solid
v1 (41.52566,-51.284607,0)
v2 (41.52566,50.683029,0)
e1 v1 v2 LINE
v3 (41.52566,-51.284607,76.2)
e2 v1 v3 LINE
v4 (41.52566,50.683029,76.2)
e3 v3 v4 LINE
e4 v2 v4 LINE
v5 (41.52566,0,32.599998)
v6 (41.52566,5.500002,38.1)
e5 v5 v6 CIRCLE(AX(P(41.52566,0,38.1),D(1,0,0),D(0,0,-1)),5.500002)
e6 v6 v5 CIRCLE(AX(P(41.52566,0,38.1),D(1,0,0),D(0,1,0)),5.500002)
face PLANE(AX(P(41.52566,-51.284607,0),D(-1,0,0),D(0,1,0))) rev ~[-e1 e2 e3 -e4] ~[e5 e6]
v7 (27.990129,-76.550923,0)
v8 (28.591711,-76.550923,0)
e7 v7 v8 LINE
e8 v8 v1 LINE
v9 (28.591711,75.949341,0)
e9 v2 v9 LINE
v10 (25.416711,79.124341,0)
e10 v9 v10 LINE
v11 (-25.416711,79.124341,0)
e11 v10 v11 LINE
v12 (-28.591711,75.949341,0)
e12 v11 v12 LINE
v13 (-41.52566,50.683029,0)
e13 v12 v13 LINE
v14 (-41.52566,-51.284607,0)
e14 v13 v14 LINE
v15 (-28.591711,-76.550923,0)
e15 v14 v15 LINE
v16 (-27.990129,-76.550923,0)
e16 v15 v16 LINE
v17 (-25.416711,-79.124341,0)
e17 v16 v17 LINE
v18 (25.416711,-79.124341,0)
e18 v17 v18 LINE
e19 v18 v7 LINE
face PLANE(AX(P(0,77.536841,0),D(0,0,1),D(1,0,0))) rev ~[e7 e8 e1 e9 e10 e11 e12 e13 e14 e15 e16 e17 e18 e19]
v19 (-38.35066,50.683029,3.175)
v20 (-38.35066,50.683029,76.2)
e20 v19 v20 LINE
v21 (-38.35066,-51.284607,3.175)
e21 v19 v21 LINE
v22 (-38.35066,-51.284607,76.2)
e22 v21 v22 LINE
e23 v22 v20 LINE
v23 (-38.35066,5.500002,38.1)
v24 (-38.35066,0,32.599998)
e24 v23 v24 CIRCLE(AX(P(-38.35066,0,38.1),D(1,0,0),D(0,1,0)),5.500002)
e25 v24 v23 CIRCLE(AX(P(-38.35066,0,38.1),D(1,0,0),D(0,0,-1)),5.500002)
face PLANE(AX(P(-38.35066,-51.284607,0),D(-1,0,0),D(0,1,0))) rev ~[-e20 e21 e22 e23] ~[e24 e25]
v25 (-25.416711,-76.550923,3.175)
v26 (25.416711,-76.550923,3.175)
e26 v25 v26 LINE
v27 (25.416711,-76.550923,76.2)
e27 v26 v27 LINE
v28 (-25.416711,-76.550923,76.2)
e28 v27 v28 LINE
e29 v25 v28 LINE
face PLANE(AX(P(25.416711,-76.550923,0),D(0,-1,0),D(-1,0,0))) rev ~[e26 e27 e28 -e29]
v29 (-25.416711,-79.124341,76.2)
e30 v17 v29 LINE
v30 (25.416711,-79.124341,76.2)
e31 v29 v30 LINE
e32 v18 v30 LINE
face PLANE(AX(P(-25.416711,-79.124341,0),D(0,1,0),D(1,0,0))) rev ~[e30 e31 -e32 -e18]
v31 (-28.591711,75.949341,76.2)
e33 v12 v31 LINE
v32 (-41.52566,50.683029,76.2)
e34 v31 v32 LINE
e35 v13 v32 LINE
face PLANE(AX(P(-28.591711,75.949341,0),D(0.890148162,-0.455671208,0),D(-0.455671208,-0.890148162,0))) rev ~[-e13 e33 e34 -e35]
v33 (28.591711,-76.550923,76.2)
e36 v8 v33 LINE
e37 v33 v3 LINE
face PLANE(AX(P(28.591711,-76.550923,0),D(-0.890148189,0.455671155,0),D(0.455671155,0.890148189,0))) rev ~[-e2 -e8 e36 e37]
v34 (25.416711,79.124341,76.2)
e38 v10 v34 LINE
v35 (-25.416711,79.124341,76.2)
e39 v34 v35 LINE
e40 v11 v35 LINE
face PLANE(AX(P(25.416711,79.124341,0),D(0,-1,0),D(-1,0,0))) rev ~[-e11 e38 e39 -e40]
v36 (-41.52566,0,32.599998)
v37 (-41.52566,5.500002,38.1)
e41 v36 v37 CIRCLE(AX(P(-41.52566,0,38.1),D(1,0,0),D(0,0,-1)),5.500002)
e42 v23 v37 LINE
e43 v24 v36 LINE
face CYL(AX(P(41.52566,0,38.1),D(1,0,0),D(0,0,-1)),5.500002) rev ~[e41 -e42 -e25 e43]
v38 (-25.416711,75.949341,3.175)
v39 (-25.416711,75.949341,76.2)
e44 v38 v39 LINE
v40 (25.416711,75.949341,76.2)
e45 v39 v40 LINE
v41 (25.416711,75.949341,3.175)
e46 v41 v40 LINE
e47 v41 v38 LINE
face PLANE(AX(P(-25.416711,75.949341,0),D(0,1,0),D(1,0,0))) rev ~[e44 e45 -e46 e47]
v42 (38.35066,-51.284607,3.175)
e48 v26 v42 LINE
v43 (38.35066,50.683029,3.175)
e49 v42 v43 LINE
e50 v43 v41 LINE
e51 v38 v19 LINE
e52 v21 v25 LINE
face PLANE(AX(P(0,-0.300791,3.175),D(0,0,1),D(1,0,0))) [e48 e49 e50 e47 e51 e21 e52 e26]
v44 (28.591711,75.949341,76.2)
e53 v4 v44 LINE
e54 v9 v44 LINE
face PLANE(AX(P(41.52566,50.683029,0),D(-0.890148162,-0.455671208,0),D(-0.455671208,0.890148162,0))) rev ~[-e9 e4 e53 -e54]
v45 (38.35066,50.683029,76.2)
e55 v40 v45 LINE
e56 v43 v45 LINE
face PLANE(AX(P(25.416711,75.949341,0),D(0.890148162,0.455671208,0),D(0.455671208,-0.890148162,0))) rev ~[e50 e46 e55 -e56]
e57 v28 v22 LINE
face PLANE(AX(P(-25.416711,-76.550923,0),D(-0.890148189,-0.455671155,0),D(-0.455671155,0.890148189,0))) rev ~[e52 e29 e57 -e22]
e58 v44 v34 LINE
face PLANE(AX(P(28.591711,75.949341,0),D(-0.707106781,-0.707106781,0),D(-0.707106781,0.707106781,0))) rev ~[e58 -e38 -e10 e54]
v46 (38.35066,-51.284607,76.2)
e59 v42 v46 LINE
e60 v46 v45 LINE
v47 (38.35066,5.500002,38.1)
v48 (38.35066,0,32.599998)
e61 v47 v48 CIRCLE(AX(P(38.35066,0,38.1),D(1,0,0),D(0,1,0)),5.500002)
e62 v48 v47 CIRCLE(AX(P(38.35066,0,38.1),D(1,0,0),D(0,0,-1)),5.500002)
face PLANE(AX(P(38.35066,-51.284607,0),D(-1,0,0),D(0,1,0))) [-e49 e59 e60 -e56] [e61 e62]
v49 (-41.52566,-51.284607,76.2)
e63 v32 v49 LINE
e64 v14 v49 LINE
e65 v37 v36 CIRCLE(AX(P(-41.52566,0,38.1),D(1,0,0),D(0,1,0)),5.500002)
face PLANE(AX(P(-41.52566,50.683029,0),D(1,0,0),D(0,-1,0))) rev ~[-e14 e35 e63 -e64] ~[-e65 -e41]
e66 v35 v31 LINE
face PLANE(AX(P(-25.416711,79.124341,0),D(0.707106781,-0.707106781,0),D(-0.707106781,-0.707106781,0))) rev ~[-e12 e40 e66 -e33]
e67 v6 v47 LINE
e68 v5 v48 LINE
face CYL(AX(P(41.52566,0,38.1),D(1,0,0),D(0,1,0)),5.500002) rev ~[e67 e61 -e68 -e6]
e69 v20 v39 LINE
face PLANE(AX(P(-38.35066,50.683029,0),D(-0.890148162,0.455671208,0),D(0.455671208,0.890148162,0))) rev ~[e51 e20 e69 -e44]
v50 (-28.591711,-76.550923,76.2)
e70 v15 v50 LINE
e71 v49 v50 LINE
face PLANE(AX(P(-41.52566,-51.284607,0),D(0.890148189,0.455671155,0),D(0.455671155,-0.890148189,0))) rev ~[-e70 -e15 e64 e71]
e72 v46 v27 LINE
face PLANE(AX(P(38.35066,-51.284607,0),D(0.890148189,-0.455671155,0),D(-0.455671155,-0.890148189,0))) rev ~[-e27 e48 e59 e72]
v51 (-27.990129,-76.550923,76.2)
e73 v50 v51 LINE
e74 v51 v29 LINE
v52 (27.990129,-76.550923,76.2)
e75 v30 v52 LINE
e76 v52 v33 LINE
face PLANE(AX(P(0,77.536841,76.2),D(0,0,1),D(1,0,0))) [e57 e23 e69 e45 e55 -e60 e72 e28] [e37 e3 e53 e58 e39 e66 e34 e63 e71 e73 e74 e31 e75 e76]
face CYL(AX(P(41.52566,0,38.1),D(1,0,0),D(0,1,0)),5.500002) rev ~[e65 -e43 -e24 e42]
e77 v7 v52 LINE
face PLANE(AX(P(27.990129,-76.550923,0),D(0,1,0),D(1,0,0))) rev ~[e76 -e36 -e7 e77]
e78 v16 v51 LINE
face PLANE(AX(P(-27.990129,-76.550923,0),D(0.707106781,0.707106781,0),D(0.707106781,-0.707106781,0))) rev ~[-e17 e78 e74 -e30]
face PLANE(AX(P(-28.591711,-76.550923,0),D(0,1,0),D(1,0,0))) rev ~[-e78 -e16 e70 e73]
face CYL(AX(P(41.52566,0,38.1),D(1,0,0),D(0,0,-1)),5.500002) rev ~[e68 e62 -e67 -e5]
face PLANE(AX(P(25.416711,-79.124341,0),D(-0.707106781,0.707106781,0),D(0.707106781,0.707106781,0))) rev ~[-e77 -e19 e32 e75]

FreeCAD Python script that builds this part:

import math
import FreeCAD as App
import Part
import Sketcher
Q = App.Units.Quantity

doc = App.newDocument("Part")
params = doc.addObject("Spreadsheet::Sheet", "Params")
for row, (alias, value) in enumerate([
    ("pad1_length", "0.125 in"),
    ("pad2_length", "3 in"),
    ("pocket1_length", "4.2 in"),
], start=1):
    params.set(f"A{row}", alias)
    params.set(f"B{row}", "=" + value)
    params.setAlias(f"B{row}", alias)

body = doc.addObject("PartDesign::Body", "Body")

# Sketch on XY plane
sketch1 = body.newObject("Sketcher::SketchObject", "Sketch")
sketch1.AttachmentSupport = (doc.getObject("XY_Plane"), [""])
sketch1.MapMode = "FlatFace"
sketch1.addGeometry([
    Part.LineSegment(App.Vector(25, 76, 0), App.Vector(-25, 76, 0)),  # 0
    Part.LineSegment(App.Vector(-25, 76, 0), App.Vector(-38, 51, 0)),  # 1
    Part.LineSegment(App.Vector(-38, 51, 0), App.Vector(-38, -51, 0)),  # 2
    Part.LineSegment(App.Vector(-38, -51, 0), App.Vector(-25, -77, 0)),  # 3
    Part.LineSegment(App.Vector(-25, -77, 0), App.Vector(25, -77, 0)),  # 4
    Part.LineSegment(App.Vector(25, -77, 0), App.Vector(38, -51, 0)),  # 5
    Part.LineSegment(App.Vector(38, -51, 0), App.Vector(38, 51, 0)),  # 6
    Part.LineSegment(App.Vector(38, 51, 0), App.Vector(25, 76, 0)),  # 7
], False)
sketch1.addConstraint([
    Sketcher.Constraint("Coincident", 0, 2, 1, 1),
    Sketcher.Constraint("Coincident", 1, 2, 2, 1),
    Sketcher.Constraint("Coincident", 2, 2, 3, 1),
    Sketcher.Constraint("Coincident", 3, 2, 4, 1),
    Sketcher.Constraint("Coincident", 4, 2, 5, 1),
    Sketcher.Constraint("Coincident", 5, 2, 6, 1),
    Sketcher.Constraint("Coincident", 6, 2, 7, 1),
    Sketcher.Constraint("Coincident", 7, 2, 0, 1),
    Sketcher.Constraint("Horizontal", 0),
    Sketcher.Constraint("Vertical", 2),
    Sketcher.Constraint("Horizontal", 4),
    Sketcher.Constraint("Vertical", 6),
    Sketcher.Constraint("Symmetric", 2, 2, 5, 2, -2),
    Sketcher.Constraint("Parallel", 1, 5),
    Sketcher.Constraint("Parallel", 3, 7),
    Sketcher.Constraint("Horizontal", 1, 2, 6, 2),
    Sketcher.Constraint("Vertical", 0, 2, 3, 2),
    Sketcher.Constraint("Vertical", 4, 2, 7, 2),
    Sketcher.Constraint("Distance", 1, Q("28.384389 mm")),
    Sketcher.Constraint("DistanceX", 0, 2, 0, 1, Q("50.833423 mm")),
    Sketcher.Constraint("DistanceY", 2, 2, 2, 1, Q("101.967636 mm")),
    Sketcher.Constraint("DistanceY", -1, 1, 0, 2, Q("75.949341 mm")),
    Sketcher.Constraint("DistanceX", 1, 2, -1, 1, Q("38.35066 mm")),
])
pad1 = body.newObject("PartDesign::Pad", "Pad")
pad1.Profile = sketch1
pad1.setExpression("Length", "Params.pad1_length")

# Sketch on XY plane
sketch2 = body.newObject("Sketcher::SketchObject", "Sketch001")
sketch2.AttachmentSupport = (doc.getObject("XY_Plane"), [""])
sketch2.MapMode = "FlatFace"
sketch2.addGeometry([
    Part.LineSegment(App.Vector(-25.4, -79.1, 0), App.Vector(25.4, -79.1, 0)),  # 0
    Part.LineSegment(App.Vector(25.4, -79.1, 0), App.Vector(28, -76.6, 0)),  # 1
    Part.LineSegment(App.Vector(28, -76.6, 0), App.Vector(28.6, -76.6, 0)),  # 2
    Part.LineSegment(App.Vector(28.6, -76.6, 0), App.Vector(41.5, -51.3, 0)),  # 3
    Part.LineSegment(App.Vector(41.5, -51.3, 0), App.Vector(41.5, 50.7, 0)),  # 4
    Part.LineSegment(App.Vector(41.5, 50.7, 0), App.Vector(28.6, 75.9, 0)),  # 5
    Part.LineSegment(App.Vector(28.6, 75.9, 0), App.Vector(25.4, 79.1, 0)),  # 6
    Part.LineSegment(App.Vector(25.4, 79.1, 0), App.Vector(-25.4, 79.1, 0)),  # 7
    Part.LineSegment(App.Vector(-25.4, 79.1, 0), App.Vector(-28.6, 75.9, 0)),  # 8
    Part.LineSegment(App.Vector(-28.6, 75.9, 0), App.Vector(-41.5, 50.7, 0)),  # 9
    Part.LineSegment(App.Vector(-41.5, 50.7, 0), App.Vector(-41.5, -51.3, 0)),  # 10
    Part.LineSegment(App.Vector(-41.5, -51.3, 0), App.Vector(-28.6, -76.6, 0)),  # 11
    Part.LineSegment(App.Vector(-28.6, -76.6, 0), App.Vector(-28, -76.6, 0)),  # 12
    Part.LineSegment(App.Vector(-28, -76.6, 0), App.Vector(-25.4, -79.1, 0)),  # 13
    Part.LineSegment(App.Vector(38.4, -51.3, 0), App.Vector(25.4, -76.6, 0)),  # 14
    Part.LineSegment(App.Vector(25.4, -76.6, 0), App.Vector(-25.4, -76.6, 0)),  # 15
    Part.LineSegment(App.Vector(-25.4, -76.6, 0), App.Vector(-38.4, -51.3, 0)),  # 16
    Part.LineSegment(App.Vector(-38.4, -51.3, 0), App.Vector(-38.4, 50.7, 0)),  # 17
    Part.LineSegment(App.Vector(-38.4, 50.7, 0), App.Vector(-25.4, 75.9, 0)),  # 18
    Part.LineSegment(App.Vector(-25.4, 75.9, 0), App.Vector(25.4, 75.9, 0)),  # 19
    Part.LineSegment(App.Vector(25.4, 75.9, 0), App.Vector(38.4, 50.7, 0)),  # 20
    Part.LineSegment(App.Vector(38.4, 50.7, 0), App.Vector(38.4, -51.3, 0)),  # 21
], False)
sketch2.addConstraint([
    Sketcher.Constraint("Coincident", 0, 2, 1, 1),
    Sketcher.Constraint("Coincident", 1, 2, 2, 1),
    Sketcher.Constraint("Coincident", 2, 2, 3, 1),
    Sketcher.Constraint("Coincident", 3, 2, 4, 1),
    Sketcher.Constraint("Coincident", 4, 2, 5, 1),
    Sketcher.Constraint("Coincident", 5, 2, 6, 1),
    Sketcher.Constraint("Coincident", 6, 2, 7, 1),
    Sketcher.Constraint("Coincident", 7, 2, 8, 1),
    Sketcher.Constraint("Coincident", 8, 2, 9, 1),
    Sketcher.Constraint("Coincident", 9, 2, 10, 1),
    Sketcher.Constraint("Coincident", 10, 2, 11, 1),
    Sketcher.Constraint("Coincident", 11, 2, 12, 1),
    Sketcher.Constraint("Coincident", 12, 2, 13, 1),
    Sketcher.Constraint("Coincident", 13, 2, 0, 1),
    Sketcher.Constraint("Coincident", 14, 2, 15, 1),
    Sketcher.Constraint("Coincident", 15, 2, 16, 1),
    Sketcher.Constraint("Coincident", 16, 2, 17, 1),
    Sketcher.Constraint("Coincident", 17, 2, 18, 1),
    Sketcher.Constraint("Coincident", 18, 2, 19, 1),
    Sketcher.Constraint("Coincident", 19, 2, 20, 1),
    Sketcher.Constraint("Coincident", 20, 2, 21, 1),
    Sketcher.Constraint("Coincident", 21, 2, 14, 1),
    Sketcher.Constraint("Horizontal", 0),
    Sketcher.Constraint("Horizontal", 2),
    Sketcher.Constraint("Vertical", 4),
    Sketcher.Constraint("Horizontal", 7),
    Sketcher.Constraint("Vertical", 10),
    Sketcher.Constraint("Horizontal", 12),
    Sketcher.Constraint("Horizontal", 15),
    Sketcher.Constraint("Vertical", 17),
    Sketcher.Constraint("Horizontal", 19),
    Sketcher.Constraint("Vertical", 21),
    Sketcher.Constraint("Symmetric", 0, 2, 7, 2, -1, 1),
    Sketcher.Constraint("Symmetric", 5, 2, 8, 2, -2),
    Sketcher.Constraint("Symmetric", 4, 2, 9, 2, -2),
    Sketcher.Constraint("Symmetric", 2, 2, 11, 2, -2),
    Sketcher.Constraint("Symmetric", 17, 2, 20, 2, -2),
    Sketcher.Constraint("Perpendicular", 1, 6),
    Sketcher.Constraint("Perpendicular", 6, 8),
    Sketcher.Constraint("Parallel", 3, 9),
    Sketcher.Constraint("Parallel", 5, 11),
    Sketcher.Constraint("Perpendicular", 8, 13),
    Sketcher.Constraint("Parallel", 9, 14),
    Sketcher.Constraint("Parallel", 11, 16),
    Sketcher.Constraint("Parallel", 14, 18),
    Sketcher.Constraint("Parallel", 16, 20),
    Sketcher.Constraint("Horizontal", 12, 2, 14, 2),
    Sketcher.Constraint("Horizontal", 10, 2, 16, 2),
    Sketcher.Constraint("Horizontal", 9, 2, 17, 2),
    Sketcher.Constraint("Horizontal", 8, 2, 18, 2),
    Sketcher.Constraint("Horizontal", 16, 2, 21, 2),
    Sketcher.Constraint("Vertical", 2, 2, 5, 2),
    Sketcher.Constraint("Vertical", 0, 2, 6, 2),
    Sketcher.Constraint("Vertical", 7, 2, 13, 2),
    Sketcher.Constraint("Vertical", 6, 2, 14, 2),
    Sketcher.Constraint("DistanceX", 0, 2, 2, 2, Q("0.125 in")),
    Sketcher.Constraint("Distance", 5, Q("28.384389 mm")),
    Sketcher.Constraint("DistanceX", 0, 1, 0, 2, Q("50.833423 mm")),
    Sketcher.Constraint("DistanceX", 2, 1, 2, 2, Q("0.601582 mm")),
    Sketcher.Constraint("DistanceY", 4, 1, 4, 2, Q("101.967636 mm")),
    Sketcher.Constraint("DistanceY", 0, 2, -1, 1, Q("79.124341 mm")),
])
pad2 = body.newObject("PartDesign::Pad", "Pad001")
pad2.Profile = sketch2
pad2.setExpression("Length", "Params.pad2_length")

# Sketch on YZ plane
sketch3 = body.newObject("Sketcher::SketchObject", "Sketch002")
sketch3.AttachmentSupport = (doc.getObject("YZ_Plane"), [""])
sketch3.MapMode = "FlatFace"
sketch3.AttachmentOffset = App.Placement(App.Vector(0, 0, 41.52566), App.Rotation())
sketch3.addGeometry([
    Part.ArcOfCircle(Part.Circle(App.Vector(0, 38, 0), App.Vector(0, 0, 1), 6), math.radians(0), math.radians(270)),
    Part.ArcOfCircle(Part.Circle(App.Vector(0, 38, 0), App.Vector(0, 0, 1), 6), math.radians(-90), math.radians(0)),
], False)
sketch3.addConstraint([
    Sketcher.Constraint("Tangent", 0, 1, 1, 2),
    Sketcher.Constraint("Coincident", 1, 1, 0, 2),
    Sketcher.Constraint("PointOnObject", 0, 3, -2),
    Sketcher.Constraint("PointOnObject", 1, 1, -2),
    Sketcher.Constraint("Horizontal", 1, 3, 0, 1),
    Sketcher.Constraint("DistanceY", -1, 1, 0, 3, Q("1.5 in")),
    Sketcher.Constraint("Radius", 0, Q("5.500002 mm")),
])
pocket1 = body.newObject("PartDesign::Pocket", "Pocket")
pocket1.Profile = sketch3
pocket1.setExpression("Length", "Params.pocket1_length")

doc.recompute()
